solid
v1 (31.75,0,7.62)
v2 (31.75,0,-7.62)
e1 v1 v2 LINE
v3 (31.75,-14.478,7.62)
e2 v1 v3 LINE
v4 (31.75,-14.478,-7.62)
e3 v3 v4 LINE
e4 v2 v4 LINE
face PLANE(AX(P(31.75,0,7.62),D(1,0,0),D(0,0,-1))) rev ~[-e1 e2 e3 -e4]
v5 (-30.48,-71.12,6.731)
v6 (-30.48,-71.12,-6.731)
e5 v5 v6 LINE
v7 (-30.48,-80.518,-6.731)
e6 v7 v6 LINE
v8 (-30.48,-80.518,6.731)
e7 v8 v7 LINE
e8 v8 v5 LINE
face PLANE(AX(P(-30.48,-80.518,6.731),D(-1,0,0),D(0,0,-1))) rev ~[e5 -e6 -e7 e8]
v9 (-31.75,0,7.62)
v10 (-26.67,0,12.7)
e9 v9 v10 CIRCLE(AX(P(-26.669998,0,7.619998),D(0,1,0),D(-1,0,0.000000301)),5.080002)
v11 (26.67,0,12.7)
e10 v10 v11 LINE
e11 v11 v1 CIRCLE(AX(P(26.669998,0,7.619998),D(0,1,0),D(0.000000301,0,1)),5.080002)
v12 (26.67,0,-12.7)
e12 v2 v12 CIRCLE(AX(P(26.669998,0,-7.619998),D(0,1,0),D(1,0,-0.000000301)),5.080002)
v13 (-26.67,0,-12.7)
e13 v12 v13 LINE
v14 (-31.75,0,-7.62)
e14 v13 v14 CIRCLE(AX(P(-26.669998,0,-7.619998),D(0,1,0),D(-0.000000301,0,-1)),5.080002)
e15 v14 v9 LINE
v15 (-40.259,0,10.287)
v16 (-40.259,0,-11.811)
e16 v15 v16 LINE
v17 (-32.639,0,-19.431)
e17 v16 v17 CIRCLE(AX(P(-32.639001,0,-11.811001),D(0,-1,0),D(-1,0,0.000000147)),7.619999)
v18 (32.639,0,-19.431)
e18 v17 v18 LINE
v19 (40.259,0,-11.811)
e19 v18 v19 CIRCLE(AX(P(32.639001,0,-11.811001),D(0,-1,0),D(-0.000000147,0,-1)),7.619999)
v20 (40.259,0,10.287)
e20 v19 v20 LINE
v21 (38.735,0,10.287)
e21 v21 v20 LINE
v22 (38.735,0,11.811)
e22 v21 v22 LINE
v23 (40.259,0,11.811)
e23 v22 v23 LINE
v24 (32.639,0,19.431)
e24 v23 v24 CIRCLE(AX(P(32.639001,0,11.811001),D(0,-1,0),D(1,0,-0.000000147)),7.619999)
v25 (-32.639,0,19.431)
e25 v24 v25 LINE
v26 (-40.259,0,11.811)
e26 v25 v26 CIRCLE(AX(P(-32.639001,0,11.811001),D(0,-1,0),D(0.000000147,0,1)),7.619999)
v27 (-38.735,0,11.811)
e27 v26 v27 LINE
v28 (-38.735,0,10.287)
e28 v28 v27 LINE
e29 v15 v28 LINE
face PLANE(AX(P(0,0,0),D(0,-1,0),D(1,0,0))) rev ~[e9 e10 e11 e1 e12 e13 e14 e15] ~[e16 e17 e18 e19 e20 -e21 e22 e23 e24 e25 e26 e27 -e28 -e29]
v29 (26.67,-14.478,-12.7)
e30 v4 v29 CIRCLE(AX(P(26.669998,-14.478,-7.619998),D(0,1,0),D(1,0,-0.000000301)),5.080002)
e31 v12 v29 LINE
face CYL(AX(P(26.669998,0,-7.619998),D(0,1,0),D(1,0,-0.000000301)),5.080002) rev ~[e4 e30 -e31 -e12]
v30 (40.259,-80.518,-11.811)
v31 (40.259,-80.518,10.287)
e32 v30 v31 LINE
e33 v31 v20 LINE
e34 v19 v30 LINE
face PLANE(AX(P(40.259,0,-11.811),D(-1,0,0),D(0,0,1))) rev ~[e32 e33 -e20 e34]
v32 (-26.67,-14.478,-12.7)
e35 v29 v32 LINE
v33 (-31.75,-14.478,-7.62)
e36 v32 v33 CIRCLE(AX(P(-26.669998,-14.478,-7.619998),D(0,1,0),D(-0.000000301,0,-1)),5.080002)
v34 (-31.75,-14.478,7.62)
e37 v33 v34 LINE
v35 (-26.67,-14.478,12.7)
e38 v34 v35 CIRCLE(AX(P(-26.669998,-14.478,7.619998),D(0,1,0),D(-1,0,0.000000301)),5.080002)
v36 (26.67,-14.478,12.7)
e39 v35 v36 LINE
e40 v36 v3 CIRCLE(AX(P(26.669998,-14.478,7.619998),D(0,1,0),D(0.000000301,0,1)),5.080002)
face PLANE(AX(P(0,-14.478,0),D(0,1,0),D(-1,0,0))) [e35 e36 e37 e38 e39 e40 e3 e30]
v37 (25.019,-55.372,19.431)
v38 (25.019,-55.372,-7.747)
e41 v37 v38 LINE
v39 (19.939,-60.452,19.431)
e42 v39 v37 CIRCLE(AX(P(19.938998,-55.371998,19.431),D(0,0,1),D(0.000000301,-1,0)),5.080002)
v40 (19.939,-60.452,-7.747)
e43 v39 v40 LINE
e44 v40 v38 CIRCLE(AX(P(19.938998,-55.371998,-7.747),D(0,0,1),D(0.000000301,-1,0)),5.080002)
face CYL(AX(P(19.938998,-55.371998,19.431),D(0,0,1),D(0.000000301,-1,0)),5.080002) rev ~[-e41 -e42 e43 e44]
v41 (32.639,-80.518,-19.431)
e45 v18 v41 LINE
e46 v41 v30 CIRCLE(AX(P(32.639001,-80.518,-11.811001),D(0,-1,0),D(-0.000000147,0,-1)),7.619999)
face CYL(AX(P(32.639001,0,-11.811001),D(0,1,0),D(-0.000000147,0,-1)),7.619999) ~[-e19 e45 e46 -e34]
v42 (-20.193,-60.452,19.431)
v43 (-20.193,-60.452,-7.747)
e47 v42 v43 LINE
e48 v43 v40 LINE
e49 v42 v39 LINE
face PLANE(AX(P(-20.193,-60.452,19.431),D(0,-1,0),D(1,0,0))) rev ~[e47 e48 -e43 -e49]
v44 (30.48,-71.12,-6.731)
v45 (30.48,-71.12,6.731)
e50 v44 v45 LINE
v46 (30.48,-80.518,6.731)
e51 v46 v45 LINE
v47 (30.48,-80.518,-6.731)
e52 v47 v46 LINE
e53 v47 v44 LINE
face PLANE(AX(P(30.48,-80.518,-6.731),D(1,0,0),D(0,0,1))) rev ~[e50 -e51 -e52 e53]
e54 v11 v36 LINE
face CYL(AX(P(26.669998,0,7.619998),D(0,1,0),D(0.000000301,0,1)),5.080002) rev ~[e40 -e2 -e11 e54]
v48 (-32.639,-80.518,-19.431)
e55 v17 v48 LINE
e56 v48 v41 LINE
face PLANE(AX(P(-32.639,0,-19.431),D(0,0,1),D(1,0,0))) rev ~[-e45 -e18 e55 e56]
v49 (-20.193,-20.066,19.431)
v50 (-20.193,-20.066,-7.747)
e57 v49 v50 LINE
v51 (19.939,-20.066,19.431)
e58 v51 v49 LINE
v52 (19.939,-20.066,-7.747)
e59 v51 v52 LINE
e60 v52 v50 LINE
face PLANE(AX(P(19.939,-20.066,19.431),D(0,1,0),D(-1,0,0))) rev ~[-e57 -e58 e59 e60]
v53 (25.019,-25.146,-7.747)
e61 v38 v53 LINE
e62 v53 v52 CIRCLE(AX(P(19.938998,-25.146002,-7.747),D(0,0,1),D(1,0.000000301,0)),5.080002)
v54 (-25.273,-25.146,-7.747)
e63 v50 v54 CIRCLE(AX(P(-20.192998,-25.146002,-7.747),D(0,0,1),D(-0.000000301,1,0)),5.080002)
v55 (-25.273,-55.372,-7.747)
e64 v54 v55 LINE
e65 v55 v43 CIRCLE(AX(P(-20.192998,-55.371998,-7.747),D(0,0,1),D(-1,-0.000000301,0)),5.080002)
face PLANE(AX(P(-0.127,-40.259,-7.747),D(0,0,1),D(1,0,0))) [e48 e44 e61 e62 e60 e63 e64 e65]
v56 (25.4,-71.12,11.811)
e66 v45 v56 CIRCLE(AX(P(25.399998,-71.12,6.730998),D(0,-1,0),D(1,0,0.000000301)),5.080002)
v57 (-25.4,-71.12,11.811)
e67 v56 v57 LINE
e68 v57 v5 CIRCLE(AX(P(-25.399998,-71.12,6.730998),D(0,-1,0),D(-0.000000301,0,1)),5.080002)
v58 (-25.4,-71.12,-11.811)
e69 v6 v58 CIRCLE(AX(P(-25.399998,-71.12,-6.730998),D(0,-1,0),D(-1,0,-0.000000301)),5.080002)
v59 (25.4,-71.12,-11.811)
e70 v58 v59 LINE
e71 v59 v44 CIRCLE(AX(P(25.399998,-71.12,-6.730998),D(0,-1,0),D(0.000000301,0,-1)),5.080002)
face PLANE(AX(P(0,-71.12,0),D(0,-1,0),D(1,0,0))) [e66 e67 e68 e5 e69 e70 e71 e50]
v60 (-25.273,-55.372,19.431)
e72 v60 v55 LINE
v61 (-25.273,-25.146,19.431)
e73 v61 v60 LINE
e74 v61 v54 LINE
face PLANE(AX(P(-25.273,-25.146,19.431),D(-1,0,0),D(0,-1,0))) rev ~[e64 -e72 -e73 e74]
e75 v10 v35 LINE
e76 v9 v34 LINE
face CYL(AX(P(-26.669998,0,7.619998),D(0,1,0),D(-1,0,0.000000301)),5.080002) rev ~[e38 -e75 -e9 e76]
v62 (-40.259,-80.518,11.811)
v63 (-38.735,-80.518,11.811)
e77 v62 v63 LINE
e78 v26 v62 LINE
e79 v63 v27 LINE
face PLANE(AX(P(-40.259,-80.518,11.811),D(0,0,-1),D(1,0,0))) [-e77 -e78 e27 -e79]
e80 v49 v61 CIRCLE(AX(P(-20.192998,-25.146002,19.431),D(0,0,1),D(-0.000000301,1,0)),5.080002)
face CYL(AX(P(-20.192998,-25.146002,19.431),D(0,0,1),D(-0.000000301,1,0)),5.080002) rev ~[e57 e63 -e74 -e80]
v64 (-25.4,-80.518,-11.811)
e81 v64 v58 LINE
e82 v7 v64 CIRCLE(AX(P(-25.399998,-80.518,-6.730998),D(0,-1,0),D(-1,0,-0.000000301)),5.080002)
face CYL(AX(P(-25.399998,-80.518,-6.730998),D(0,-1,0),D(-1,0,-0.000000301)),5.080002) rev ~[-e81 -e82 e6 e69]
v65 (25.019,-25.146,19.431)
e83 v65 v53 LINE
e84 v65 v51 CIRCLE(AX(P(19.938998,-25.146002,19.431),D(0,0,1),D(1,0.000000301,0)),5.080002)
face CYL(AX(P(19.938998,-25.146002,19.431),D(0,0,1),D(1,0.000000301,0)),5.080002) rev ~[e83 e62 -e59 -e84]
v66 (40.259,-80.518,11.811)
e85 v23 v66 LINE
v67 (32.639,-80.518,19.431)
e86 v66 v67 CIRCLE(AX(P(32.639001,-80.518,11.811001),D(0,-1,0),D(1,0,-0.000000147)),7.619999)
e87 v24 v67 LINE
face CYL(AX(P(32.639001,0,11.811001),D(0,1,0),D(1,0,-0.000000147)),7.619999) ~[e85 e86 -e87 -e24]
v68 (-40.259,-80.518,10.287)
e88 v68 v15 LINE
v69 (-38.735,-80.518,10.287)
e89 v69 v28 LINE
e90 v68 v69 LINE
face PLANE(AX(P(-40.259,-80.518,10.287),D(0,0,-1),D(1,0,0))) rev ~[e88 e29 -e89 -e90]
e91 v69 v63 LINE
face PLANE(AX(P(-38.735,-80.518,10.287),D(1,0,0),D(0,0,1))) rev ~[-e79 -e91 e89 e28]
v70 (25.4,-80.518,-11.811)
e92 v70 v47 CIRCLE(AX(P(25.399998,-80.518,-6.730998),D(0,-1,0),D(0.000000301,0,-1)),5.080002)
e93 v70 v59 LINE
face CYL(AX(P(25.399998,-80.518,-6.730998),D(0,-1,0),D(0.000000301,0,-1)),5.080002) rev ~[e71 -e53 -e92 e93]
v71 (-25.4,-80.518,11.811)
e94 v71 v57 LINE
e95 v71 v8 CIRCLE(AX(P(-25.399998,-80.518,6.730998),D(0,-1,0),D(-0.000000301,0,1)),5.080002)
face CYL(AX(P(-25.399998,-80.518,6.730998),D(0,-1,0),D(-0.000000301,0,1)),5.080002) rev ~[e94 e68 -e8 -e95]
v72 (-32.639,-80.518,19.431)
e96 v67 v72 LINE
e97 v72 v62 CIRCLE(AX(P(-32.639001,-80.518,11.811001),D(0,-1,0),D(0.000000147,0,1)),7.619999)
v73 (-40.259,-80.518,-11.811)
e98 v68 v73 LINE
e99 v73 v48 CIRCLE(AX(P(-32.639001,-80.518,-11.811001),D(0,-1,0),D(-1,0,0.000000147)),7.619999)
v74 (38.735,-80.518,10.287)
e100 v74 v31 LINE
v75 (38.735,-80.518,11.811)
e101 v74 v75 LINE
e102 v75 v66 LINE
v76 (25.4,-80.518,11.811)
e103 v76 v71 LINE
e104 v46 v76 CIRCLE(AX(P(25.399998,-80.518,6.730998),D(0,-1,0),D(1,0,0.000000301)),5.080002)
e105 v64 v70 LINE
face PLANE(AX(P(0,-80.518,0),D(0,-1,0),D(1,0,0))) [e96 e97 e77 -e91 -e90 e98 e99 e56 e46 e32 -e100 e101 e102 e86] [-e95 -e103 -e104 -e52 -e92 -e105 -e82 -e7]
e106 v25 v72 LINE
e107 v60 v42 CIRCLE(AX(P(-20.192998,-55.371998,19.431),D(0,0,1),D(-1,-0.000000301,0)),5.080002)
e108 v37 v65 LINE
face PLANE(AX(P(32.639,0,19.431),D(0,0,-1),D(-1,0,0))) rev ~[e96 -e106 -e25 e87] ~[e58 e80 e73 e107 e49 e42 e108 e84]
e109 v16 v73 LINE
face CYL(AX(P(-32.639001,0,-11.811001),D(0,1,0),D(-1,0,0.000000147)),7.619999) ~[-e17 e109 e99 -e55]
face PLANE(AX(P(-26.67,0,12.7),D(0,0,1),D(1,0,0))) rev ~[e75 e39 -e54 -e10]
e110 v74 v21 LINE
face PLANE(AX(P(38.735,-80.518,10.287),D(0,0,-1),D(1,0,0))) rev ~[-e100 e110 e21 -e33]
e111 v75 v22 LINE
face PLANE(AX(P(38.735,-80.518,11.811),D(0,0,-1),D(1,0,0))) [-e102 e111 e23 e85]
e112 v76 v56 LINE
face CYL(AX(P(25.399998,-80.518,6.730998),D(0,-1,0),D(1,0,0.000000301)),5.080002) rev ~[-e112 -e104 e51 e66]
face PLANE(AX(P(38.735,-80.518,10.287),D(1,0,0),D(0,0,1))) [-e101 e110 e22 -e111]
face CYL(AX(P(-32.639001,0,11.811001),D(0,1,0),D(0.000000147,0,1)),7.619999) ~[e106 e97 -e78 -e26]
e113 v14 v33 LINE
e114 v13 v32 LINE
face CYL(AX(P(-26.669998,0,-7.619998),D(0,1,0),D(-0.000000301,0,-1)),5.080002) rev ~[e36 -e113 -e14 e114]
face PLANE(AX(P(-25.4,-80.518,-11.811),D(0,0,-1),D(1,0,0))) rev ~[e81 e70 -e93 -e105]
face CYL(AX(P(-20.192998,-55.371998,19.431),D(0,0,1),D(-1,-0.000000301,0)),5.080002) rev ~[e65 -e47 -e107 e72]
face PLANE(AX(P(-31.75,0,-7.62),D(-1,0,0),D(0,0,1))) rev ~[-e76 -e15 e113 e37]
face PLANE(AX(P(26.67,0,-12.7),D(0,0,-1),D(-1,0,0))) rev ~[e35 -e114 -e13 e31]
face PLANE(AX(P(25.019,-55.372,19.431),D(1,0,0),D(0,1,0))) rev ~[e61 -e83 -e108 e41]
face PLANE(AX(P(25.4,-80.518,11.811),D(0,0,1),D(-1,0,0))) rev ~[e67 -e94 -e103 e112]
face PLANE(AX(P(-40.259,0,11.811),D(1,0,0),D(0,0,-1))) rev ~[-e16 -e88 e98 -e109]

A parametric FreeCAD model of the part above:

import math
import FreeCAD as App
import Part
import Sketcher
from FreeCAD import Vector
Q = App.Units.Quantity

doc = App.newDocument("Part")
params = doc.addObject("Spreadsheet::Sheet", "Params")
for row, (alias, value) in enumerate([
    ("sketch1_radius", "0.3 in"),
    ("sketch1_width", "2.57 in"),
    ("sketch1_height", "0.93 in"),
    ("pad1_length", "3.17 in"),
    ("sketch2_radius", "0.2000001 in"),
    ("sketch2_width", "2 in"),
    ("sketch2_height", "0.53 in"),
    ("pocket1_length", "0.37 in"),
    ("sketch3_width", "0.06 in"),
    ("sketch4_radius", "0.2000001 in"),
    ("sketch4_width", "1.58 in"),
    ("sketch4_height", "1.19 in"),
    ("pocket3_length", "1.07 in"),
    ("sketch5_radius", "0.2000001 in"),
    ("sketch5_width", "2.1 in"),
    ("sketch5_height", "0.6 in"),
    ("pocket4_length", "0.57 in"),
], start=1):
    params.set(f"A{row}", alias)
    params.set(f"B{row}", "=" + value)
    params.setAlias(f"B{row}", alias)

body = doc.addObject("PartDesign::Body", "Body")

# Sketch on XZ plane
sketch1 = body.newObject("Sketcher::SketchObject", "Sketch")
sketch1.AttachmentSupport = (doc.getObject("XZ_Plane"), [""])
sketch1.MapMode = "FlatFace"
sketch1.addGeometry([
    Part.ArcOfCircle(Part.Circle(Vector(32.639001, 11.811001, 0), Vector(0, 0, 1), 7.619999), math.radians(-0.000008), math.radians(90.000008)),  # 0
    Part.LineSegment(Vector(32.639, 19.431, 0), Vector(-32.639, 19.431, 0)),  # 1
    Part.ArcOfCircle(Part.Circle(Vector(-32.639001, 11.811001, 0), Vector(0, 0, 1), 7.619999), math.radians(89.999992), math.radians(180.000008)),  # 2
    Part.LineSegment(Vector(-40.259, 11.811, 0), Vector(-40.259, -11.811, 0)),  # 3
    Part.ArcOfCircle(Part.Circle(Vector(-32.639001, -11.811001, 0), Vector(0, 0, 1), 7.619999), math.radians(179.999992), math.radians(270.000008)),  # 4
    Part.LineSegment(Vector(-32.639, -19.431, 0), Vector(32.639, -19.431, 0)),  # 5
    Part.ArcOfCircle(Part.Circle(Vector(32.639001, -11.811001, 0), Vector(0, 0, 1), 7.619999), math.radians(-90.000008), math.radians(0.000008)),  # 6
    Part.LineSegment(Vector(40.259, -11.811, 0), Vector(40.259, 11.811, 0)),  # 7
], False)
sketch1.addConstraint([
    Sketcher.Constraint("Tangent", 0, 2, 1, 1),
    Sketcher.Constraint("Tangent", 1, 2, 2, 1),
    Sketcher.Constraint("Tangent", 2, 2, 3, 1),
    Sketcher.Constraint("Tangent", 3, 2, 4, 1),
    Sketcher.Constraint("Tangent", 4, 2, 5, 1),
    Sketcher.Constraint("Tangent", 5, 2, 6, 1),
    Sketcher.Constraint("Tangent", 6, 2, 7, 1),
    Sketcher.Constraint("Tangent", 7, 2, 0, 1),
    Sketcher.Constraint("Horizontal", 1),
    Sketcher.Constraint("Vertical", 3),
    Sketcher.Constraint("Horizontal", 5),
    Sketcher.Constraint("Vertical", 7),
    Sketcher.Constraint("Equal", 0, 2),
    Sketcher.Constraint("Equal", 2, 4),
    Sketcher.Constraint("Equal", 4, 6),
    Sketcher.Constraint("Symmetric", 0, 3, 4, 3, -1, 1),
    Sketcher.Constraint("Radius", 0, Q("0.3 in")),
    Sketcher.Constraint("DistanceX", 1, 2, 1, 1, Q("2.57 in")),
    Sketcher.Constraint("DistanceY", 3, 2, 3, 1, Q("0.93 in")),
])
sketch1.setExpression("Constraints[16]", "Params.sketch1_radius")
sketch1.setExpression("Constraints[17]", "Params.sketch1_width")
sketch1.setExpression("Constraints[18]", "Params.sketch1_height")
pad1 = body.newObject("PartDesign::Pad", "Pad")
pad1.Profile = sketch1
pad1.setExpression("Length", "Params.pad1_length")

# Sketch on XZ plane
sketch2 = body.newObject("Sketcher::SketchObject", "Sketch001")
sketch2.AttachmentSupport = (doc.getObject("XZ_Plane"), [""])
sketch2.MapMode = "FlatFace"
sketch2.AttachmentOffset = App.Placement(Vector(0, 0, 3.17 * 25.4), App.Rotation())
sketch2.addGeometry([
    Part.ArcOfCircle(Part.Circle(Vector(25.399998, 6.730998, 0), Vector(0, 0, 1), 5.080002), math.radians(0.000017), math.radians(89.999983)),  # 0
    Part.LineSegment(Vector(25.4, 11.811, 0), Vector(-25.4, 11.811, 0)),  # 1
    Part.ArcOfCircle(Part.Circle(Vector(-25.399998, 6.730998, 0), Vector(0, 0, 1), 5.080002), math.radians(90.000017), math.radians(179.999983)),  # 2
    Part.LineSegment(Vector(-30.48, 6.731, 0), Vector(-30.48, -6.731, 0)),  # 3
    Part.ArcOfCircle(Part.Circle(Vector(-25.399998, -6.730998, 0), Vector(0, 0, 1), 5.080002), math.radians(-179.999983), math.radians(-90.000017)),  # 4
    Part.LineSegment(Vector(-25.4, -11.811, 0), Vector(25.4, -11.811, 0)),  # 5
    Part.ArcOfCircle(Part.Circle(Vector(25.399998, -6.730998, 0), Vector(0, 0, 1), 5.080002), math.radians(-89.999983), math.radians(-0.000017)),  # 6
    Part.LineSegment(Vector(30.48, -6.731, 0), Vector(30.48, 6.731, 0)),  # 7
], False)
sketch2.addConstraint([
    Sketcher.Constraint("Tangent", 0, 2, 1, 1),
    Sketcher.Constraint("Tangent", 1, 2, 2, 1),
    Sketcher.Constraint("Tangent", 2, 2, 3, 1),
    Sketcher.Constraint("Tangent", 3, 2, 4, 1),
    Sketcher.Constraint("Tangent", 4, 2, 5, 1),
    Sketcher.Constraint("Tangent", 5, 2, 6, 1),
    Sketcher.Constraint("Tangent", 6, 2, 7, 1),
    Sketcher.Constraint("Tangent", 7, 2, 0, 1),
    Sketcher.Constraint("Horizontal", 1),
    Sketcher.Constraint("Vertical", 3),
    Sketcher.Constraint("Horizontal", 5),
    Sketcher.Constraint("Vertical", 7),
    Sketcher.Constraint("Equal", 0, 2),
    Sketcher.Constraint("Equal", 2, 4),
    Sketcher.Constraint("Equal", 4, 6),
    Sketcher.Constraint("Symmetric", 0, 3, 4, 3, -1, 1),
    Sketcher.Constraint("Radius", 0, Q("0.2000001 in")),
    Sketcher.Constraint("DistanceX", 1, 2, 1, 1, Q("2 in")),
    Sketcher.Constraint("DistanceY", 3, 2, 3, 1, Q("0.53 in")),
])
sketch2.setExpression("Constraints[16]", "Params.sketch2_radius")
sketch2.setExpression("Constraints[17]", "Params.sketch2_width")
sketch2.setExpression("Constraints[18]", "Params.sketch2_height")
pocket1 = body.newObject("PartDesign::Pocket", "Pocket")
pocket1.Profile = sketch2
pocket1.setExpression("Length", "Params.pocket1_length")

# Sketch on XZ plane
sketch3 = body.newObject("Sketcher::SketchObject", "Sketch002")
sketch3.AttachmentSupport = (doc.getObject("XZ_Plane"), [""])
sketch3.MapMode = "FlatFace"
sketch3.AttachmentOffset = App.Placement(Vector(0, 0, 3.17 * 25.4), App.Rotation())
sketch3.addGeometry([
    Part.LineSegment(Vector(-40.259, 11.811, 0), Vector(-40.259, 10.287, 0)),  # 0
    Part.LineSegment(Vector(-40.259, 10.287, 0), Vector(-38.735, 10.287, 0)),  # 1
    Part.LineSegment(Vector(-38.735, 10.287, 0), Vector(-38.735, 11.811, 0)),  # 2
    Part.LineSegment(Vector(-38.735, 11.811, 0), Vector(-40.259, 11.811, 0)),  # 3
    Part.LineSegment(Vector(38.735, 11.811, 0), Vector(38.735, 10.287, 0)),  # 4
    Part.LineSegment(Vector(38.735, 10.287, 0), Vector(40.259, 10.287, 0)),  # 5
    Part.LineSegment(Vector(40.259, 10.287, 0), Vector(40.259, 11.811, 0)),  # 6
    Part.LineSegment(Vector(40.259, 11.811, 0), Vector(38.735, 11.811, 0)),  # 7
], False)
sketch3.addConstraint([
    Sketcher.Constraint("Coincident", 0, 2, 1, 1),
    Sketcher.Constraint("Coincident", 1, 2, 2, 1),
    Sketcher.Constraint("Coincident", 2, 2, 3, 1),
    Sketcher.Constraint("Coincident", 3, 2, 0, 1),
    Sketcher.Constraint("Coincident", 4, 2, 5, 1),
    Sketcher.Constraint("Coincident", 5, 2, 6, 1),
    Sketcher.Constraint("Coincident", 6, 2, 7, 1),
    Sketcher.Constraint("Coincident", 7, 2, 4, 1),
    Sketcher.Constraint("Vertical", 0),
    Sketcher.Constraint("Horizontal", 1),
    Sketcher.Constraint("Vertical", 2),
    Sketcher.Constraint("Horizontal", 3),
    Sketcher.Constraint("Vertical", 4),
    Sketcher.Constraint("Horizontal", 5),
    Sketcher.Constraint("Vertical", 6),
    Sketcher.Constraint("Horizontal", 7),
    Sketcher.Constraint("Symmetric", 1, 2, 4, 2, -2),
    Sketcher.Constraint("Symmetric", 3, 2, 6, 2, -2),
    Sketcher.Constraint("Equal", 7, 0),
    Sketcher.Constraint("DistanceX", 1, 1, 1, 2, Q("0.06 in")),
    Sketcher.Constraint("DistanceX", 1, 2, 4, 2, Q("3.05 in")),
    Sketcher.Constraint("DistanceY", -1, 1, 0, 2, Q("0.405 in")),
])
sketch3.setExpression("Constraints[19]", "Params.sketch3_width")
pocket2 = body.newObject("PartDesign::Pocket", "Pocket001")
pocket2.Profile = sketch3
pocket2.Type = "ThroughAll"

# Sketch on XY plane
sketch4 = body.newObject("Sketcher::SketchObject", "Sketch003")
sketch4.AttachmentSupport = (doc.getObject("XY_Plane"), [""])
sketch4.MapMode = "FlatFace"
sketch4.AttachmentOffset = App.Placement(Vector(0, 0, 0.765 * 25.4), App.Rotation())
sketch4.addGeometry([
    Part.LineSegment(Vector(19.939, -20.066, 0), Vector(-20.193, -20.066, 0)),  # 0
    Part.ArcOfCircle(Part.Circle(Vector(-20.192998, -25.146002, 0), Vector(0, 0, 1), 5.080002), math.radians(90.000017), math.radians(179.999983)),  # 1
    Part.LineSegment(Vector(-25.273, -25.146, 0), Vector(-25.273, -55.372, 0)),  # 2
    Part.ArcOfCircle(Part.Circle(Vector(-20.192998, -55.371998, 0), Vector(0, 0, 1), 5.080002), math.radians(-179.999983), math.radians(-90.000017)),  # 3
    Part.LineSegment(Vector(-20.193, -60.452, 0), Vector(19.939, -60.452, 0)),  # 4
    Part.ArcOfCircle(Part.Circle(Vector(19.938998, -55.371998, 0), Vector(0, 0, 1), 5.080002), math.radians(-89.999983), math.radians(-0.000017)),  # 5
    Part.LineSegment(Vector(25.019, -55.372, 0), Vector(25.019, -25.146, 0)),  # 6
    Part.ArcOfCircle(Part.Circle(Vector(19.938998, -25.146002, 0), Vector(0, 0, 1), 5.080002), math.radians(0.000017), math.radians(89.999983)),  # 7
], False)
sketch4.addConstraint([
    Sketcher.Constraint("Tangent", 0, 2, 1, 1),
    Sketcher.Constraint("Tangent", 1, 2, 2, 1),
    Sketcher.Constraint("Tangent", 2, 2, 3, 1),
    Sketcher.Constraint("Tangent", 3, 2, 4, 1),
    Sketcher.Constraint("Tangent", 4, 2, 5, 1),
    Sketcher.Constraint("Tangent", 5, 2, 6, 1),
    Sketcher.Constraint("Tangent", 6, 2, 7, 1),
    Sketcher.Constraint("Tangent", 7, 2, 0, 1),
    Sketcher.Constraint("Horizontal", 0),
    Sketcher.Constraint("Vertical", 2),
    Sketcher.Constraint("Horizontal", 4),
    Sketcher.Constraint("Vertical", 6),
    Sketcher.Constraint("Equal", 1, 3),
    Sketcher.Constraint("Equal", 3, 5),
    Sketcher.Constraint("Equal", 5, 7),
    Sketcher.Constraint("Radius", 1, Q("0.2000001 in")),
    Sketcher.Constraint("DistanceX", 0, 2, 0, 1, Q("1.58 in")),
    Sketcher.Constraint("DistanceY", 2, 2, 2, 1, Q("1.19 in")),
    Sketcher.Constraint("DistanceY", 1, 3, -1, 1, Q("0.9900001 in")),
    Sketcher.Constraint("DistanceX", 1, 3, -1, 1, Q("0.7949999 in")),
])
sketch4.setExpression("Constraints[15]", "Params.sketch4_radius")
sketch4.setExpression("Constraints[16]", "Params.sketch4_width")
sketch4.setExpression("Constraints[17]", "Params.sketch4_height")
pocket3 = body.newObject("PartDesign::Pocket", "Pocket002")
pocket3.Profile = sketch4
pocket3.setExpression("Length", "Params.pocket3_length")

# Sketch on XZ plane
sketch5 = body.newObject("Sketcher::SketchObject", "Sketch004")
sketch5.AttachmentSupport = (doc.getObject("XZ_Plane"), [""])
sketch5.MapMode = "FlatFace"
sketch5.addGeometry([
    Part.ArcOfCircle(Part.Circle(Vector(-26.669998, 7.619998, 0), Vector(0, 0, 1), 5.080002), math.radians(90.000017), math.radians(179.999983)),  # 0
    Part.LineSegment(Vector(-26.67, 12.7, 0), Vector(26.67, 12.7, 0)),  # 1
    Part.ArcOfCircle(Part.Circle(Vector(26.669998, 7.619998, 0), Vector(0, 0, 1), 5.080002), math.radians(0.000017), math.radians(89.999983)),  # 2
    Part.LineSegment(Vector(31.75, 7.62, 0), Vector(31.75, -7.62, 0)),  # 3
    Part.ArcOfCircle(Part.Circle(Vector(26.669998, -7.619998, 0), Vector(0, 0, 1), 5.080002), math.radians(-89.999983), math.radians(-0.000017)),  # 4
    Part.LineSegment(Vector(26.67, -12.7, 0), Vector(-26.67, -12.7, 0)),  # 5
    Part.ArcOfCircle(Part.Circle(Vector(-26.669998, -7.619998, 0), Vector(0, 0, 1), 5.080002), math.radians(-179.999983), math.radians(-90.000017)),  # 6
    Part.LineSegment(Vector(-31.75, -7.62, 0), Vector(-31.75, 7.62, 0)),  # 7
], False)
sketch5.addConstraint([
    Sketcher.Constraint("Tangent", 0, 1, 1, 1),
    Sketcher.Constraint("Tangent", 1, 2, 2, 2),
    Sketcher.Constraint("Tangent", 2, 1, 3, 1),
    Sketcher.Constraint("Tangent", 3, 2, 4, 2),
    Sketcher.Constraint("Tangent", 4, 1, 5, 1),
    Sketcher.Constraint("Tangent", 5, 2, 6, 2),
    Sketcher.Constraint("Tangent", 6, 1, 7, 1),
    Sketcher.Constraint("Tangent", 7, 2, 0, 2),
    Sketcher.Constraint("Horizontal", 1),
    Sketcher.Constraint("Vertical", 3),
    Sketcher.Constraint("Horizontal", 5),
    Sketcher.Constraint("Vertical", 7),
    Sketcher.Constraint("Equal", 0, 2),
    Sketcher.Constraint("Equal", 2, 4),
    Sketcher.Constraint("Equal", 4, 6),
    Sketcher.Constraint("Symmetric", 0, 3, 4, 3, -1, 1),
    Sketcher.Constraint("Radius", 0, Q("0.2000001 in")),
    Sketcher.Constraint("DistanceX", 1, 1, 1, 2, Q("2.1 in")),
    Sketcher.Constraint("DistanceY", 3, 2, 3, 1, Q("0.6 in")),
])
sketch5.setExpression("Constraints[16]", "Params.sketch5_radius")
sketch5.setExpression("Constraints[17]", "Params.sketch5_width")
sketch5.setExpression("Constraints[18]", "Params.sketch5_height")
pocket4 = body.newObject("PartDesign::Pocket", "Pocket003")
pocket4.Profile = sketch5
pocket4.setExpression("Length", "Params.pocket4_length")
pocket4.Reversed = True

doc.recompute()
